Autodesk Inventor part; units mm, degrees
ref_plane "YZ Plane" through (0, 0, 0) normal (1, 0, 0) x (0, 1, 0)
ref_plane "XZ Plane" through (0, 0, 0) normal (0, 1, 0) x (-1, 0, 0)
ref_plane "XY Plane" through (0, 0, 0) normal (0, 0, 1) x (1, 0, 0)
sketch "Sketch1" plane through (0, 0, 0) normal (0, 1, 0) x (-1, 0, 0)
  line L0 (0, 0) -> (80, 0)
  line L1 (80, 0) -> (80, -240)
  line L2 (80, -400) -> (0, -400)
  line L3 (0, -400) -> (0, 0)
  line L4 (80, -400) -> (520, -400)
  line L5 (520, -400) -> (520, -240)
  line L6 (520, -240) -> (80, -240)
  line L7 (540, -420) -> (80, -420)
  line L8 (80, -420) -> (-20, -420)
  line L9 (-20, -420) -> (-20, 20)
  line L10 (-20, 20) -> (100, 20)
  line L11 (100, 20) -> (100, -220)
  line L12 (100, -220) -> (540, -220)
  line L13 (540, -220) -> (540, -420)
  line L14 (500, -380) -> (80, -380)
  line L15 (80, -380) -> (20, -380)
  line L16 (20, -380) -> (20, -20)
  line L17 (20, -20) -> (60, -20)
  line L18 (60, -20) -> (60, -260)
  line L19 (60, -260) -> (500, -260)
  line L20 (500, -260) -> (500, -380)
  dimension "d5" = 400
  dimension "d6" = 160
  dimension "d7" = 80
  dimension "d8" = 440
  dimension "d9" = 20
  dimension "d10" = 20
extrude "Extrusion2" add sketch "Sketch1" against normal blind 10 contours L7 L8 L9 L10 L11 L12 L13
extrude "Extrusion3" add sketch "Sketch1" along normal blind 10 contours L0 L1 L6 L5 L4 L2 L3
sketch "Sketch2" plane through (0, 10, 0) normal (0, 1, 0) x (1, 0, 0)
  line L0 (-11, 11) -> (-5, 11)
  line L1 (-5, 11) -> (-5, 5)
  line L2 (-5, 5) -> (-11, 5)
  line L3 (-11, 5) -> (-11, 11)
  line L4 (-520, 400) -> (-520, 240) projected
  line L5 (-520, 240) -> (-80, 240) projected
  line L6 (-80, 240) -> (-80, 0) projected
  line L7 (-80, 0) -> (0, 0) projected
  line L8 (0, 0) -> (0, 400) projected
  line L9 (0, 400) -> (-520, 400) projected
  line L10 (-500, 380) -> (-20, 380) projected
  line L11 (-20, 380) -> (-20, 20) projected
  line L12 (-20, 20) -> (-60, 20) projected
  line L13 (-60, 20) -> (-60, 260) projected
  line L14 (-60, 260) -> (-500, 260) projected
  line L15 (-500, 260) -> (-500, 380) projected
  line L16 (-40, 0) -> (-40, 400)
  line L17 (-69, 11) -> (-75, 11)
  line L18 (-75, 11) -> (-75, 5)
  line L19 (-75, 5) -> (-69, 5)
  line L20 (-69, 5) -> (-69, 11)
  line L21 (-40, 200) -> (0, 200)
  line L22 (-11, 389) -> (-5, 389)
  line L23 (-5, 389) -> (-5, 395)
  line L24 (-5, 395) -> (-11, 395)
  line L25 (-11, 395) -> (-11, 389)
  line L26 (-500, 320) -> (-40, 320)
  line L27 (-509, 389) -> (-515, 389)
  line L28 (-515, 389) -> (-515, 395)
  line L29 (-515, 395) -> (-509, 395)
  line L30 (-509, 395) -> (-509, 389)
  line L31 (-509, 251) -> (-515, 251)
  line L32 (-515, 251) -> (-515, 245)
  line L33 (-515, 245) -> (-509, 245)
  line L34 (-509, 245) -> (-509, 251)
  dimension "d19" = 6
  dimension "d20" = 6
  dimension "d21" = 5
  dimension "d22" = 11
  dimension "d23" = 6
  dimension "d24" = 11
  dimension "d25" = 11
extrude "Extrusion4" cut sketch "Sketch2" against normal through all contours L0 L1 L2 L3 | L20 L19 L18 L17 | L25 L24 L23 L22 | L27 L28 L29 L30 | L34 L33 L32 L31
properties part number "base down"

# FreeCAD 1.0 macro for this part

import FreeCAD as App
import Part
import Sketcher
from FreeCAD import Vector

doc = App.newDocument("Part")
body = doc.addObject("PartDesign::Body", "Body")
body.AllowCompound = True

# Sketch on XZ plane
sketch1 = body.newObject("Sketcher::SketchObject", "Sketch")
sketch1.AttachmentSupport = (doc.getObject("XZ_Plane"), [""])
sketch1.MapMode = "FlatFace"
sketch1.addGeometry(Part.LineSegment(Vector(20, -420, 0), Vector(-540, -420, 0)), False)
sketch1.addGeometry(Part.LineSegment(Vector(-540, -420, 0), Vector(-540, -220, 0)), False)
sketch1.addGeometry(Part.LineSegment(Vector(-540, -220, 0), Vector(-100, -220, 0)), False)
sketch1.addGeometry(Part.LineSegment(Vector(-100, -220, 0), Vector(-100, 20, 0)), False)
sketch1.addGeometry(Part.LineSegment(Vector(-100, 20, 0), Vector(20, 20, 0)), False)
sketch1.addGeometry(Part.LineSegment(Vector(20, 20, 0), Vector(20, -420, 0)), False)
sketch1.addGeometry(Part.LineSegment(Vector(0, -400, 0), Vector(0, 0, 0)), False)
sketch1.addGeometry(Part.LineSegment(Vector(0, 0, 0), Vector(-80, 0, 0)), False)
sketch1.addGeometry(Part.LineSegment(Vector(-80, 0, 0), Vector(-80, -240, 0)), False)
sketch1.addGeometry(Part.LineSegment(Vector(-80, -240, 0), Vector(-520, -240, 0)), False)
sketch1.addGeometry(Part.LineSegment(Vector(-520, -240, 0), Vector(-520, -400, 0)), False)
sketch1.addGeometry(Part.LineSegment(Vector(-520, -400, 0), Vector(0, -400, 0)), False)
sketch1.addConstraint(Sketcher.Constraint("Coincident", 0, 2, 1, 1))
sketch1.addConstraint(Sketcher.Constraint("Coincident", 1, 2, 2, 1))
sketch1.addConstraint(Sketcher.Constraint("Coincident", 2, 2, 3, 1))
sketch1.addConstraint(Sketcher.Constraint("Coincident", 3, 2, 4, 1))
sketch1.addConstraint(Sketcher.Constraint("Coincident", 4, 2, 5, 1))
sketch1.addConstraint(Sketcher.Constraint("Coincident", 5, 2, 0, 1))
sketch1.addConstraint(Sketcher.Constraint("Coincident", 6, 2, 7, 1))
sketch1.addConstraint(Sketcher.Constraint("Coincident", 7, 2, 8, 1))
sketch1.addConstraint(Sketcher.Constraint("Coincident", 8, 2, 9, 1))
sketch1.addConstraint(Sketcher.Constraint("Coincident", 9, 2, 10, 1))
sketch1.addConstraint(Sketcher.Constraint("Coincident", 10, 2, 11, 1))
sketch1.addConstraint(Sketcher.Constraint("Coincident", 11, 2, 6, 1))
sketch1.addConstraint(Sketcher.Constraint("Horizontal", 0))
sketch1.addConstraint(Sketcher.Constraint("Vertical", 1))
sketch1.addConstraint(Sketcher.Constraint("Horizontal", 2))
sketch1.addConstraint(Sketcher.Constraint("Vertical", 3))
sketch1.addConstraint(Sketcher.Constraint("Horizontal", 4))
sketch1.addConstraint(Sketcher.Constraint("Vertical", 5))
sketch1.addConstraint(Sketcher.Constraint("Vertical", 6))
sketch1.addConstraint(Sketcher.Constraint("Horizontal", 7))
sketch1.addConstraint(Sketcher.Constraint("Vertical", 8))
sketch1.addConstraint(Sketcher.Constraint("Horizontal", 9))
sketch1.addConstraint(Sketcher.Constraint("Vertical", 10))
sketch1.addConstraint(Sketcher.Constraint("Horizontal", 11))
sketch1.addConstraint(Sketcher.Constraint("Coincident", 6, 2, -1, 1))
sketch1.addConstraint(Sketcher.Constraint("Equal", 2, 9))
sketch1.addConstraint(Sketcher.Constraint("Equal", 9, 5))
sketch1.addConstraint(Sketcher.Constraint("Equal", 3, 8))
sketch1.addConstraint(Sketcher.Constraint("DistanceX", 2, 1, 2, 2, 440.0))
sketch1.addConstraint(Sketcher.Constraint("DistanceX", 7, 2, 7, 1, 80.0))
sketch1.addConstraint(Sketcher.Constraint("DistanceY", 6, 1, 6, 2, 400.0))
sketch1.addConstraint(Sketcher.Constraint("DistanceY", 10, 2, 10, 1, 160.0))
sketch1.addConstraint(Sketcher.Constraint("DistanceY", -1, 1, 3, 2, 20.0))
sketch1.addConstraint(Sketcher.Constraint("DistanceX", -1, 1, 4, 2, 20.0))
sketch1.addConstraint(Sketcher.Constraint("DistanceX", 3, 2, 7, 2, 20.0))
pad1 = body.newObject("PartDesign::Pad", "Pad")
pad1.Profile = sketch1
pad1.Length = 10

# Sketch on XZ plane
sketch2 = body.newObject("Sketcher::SketchObject", "Sketch001")
sketch2.AttachmentSupport = (doc.getObject("XZ_Plane"), [""])
sketch2.MapMode = "FlatFace"
sketch2.addGeometry(Part.LineSegment(Vector(-80, 0, 0), Vector(0, 0, 0)), False)
sketch2.addGeometry(Part.LineSegment(Vector(0, 0, 0), Vector(0, -400, 0)), False)
sketch2.addGeometry(Part.LineSegment(Vector(0, -400, 0), Vector(-520, -400, 0)), False)
sketch2.addGeometry(Part.LineSegment(Vector(-520, -400, 0), Vector(-520, -240, 0)), False)
sketch2.addGeometry(Part.LineSegment(Vector(-520, -240, 0), Vector(-80, -240, 0)), False)
sketch2.addGeometry(Part.LineSegment(Vector(-80, -240, 0), Vector(-80, 0, 0)), False)
sketch2.addGeometry(Part.LineSegment(Vector(-500, -260, 0), Vector(-500, -380, 0)), False)
sketch2.addGeometry(Part.LineSegment(Vector(-500, -380, 0), Vector(-20, -380, 0)), False)
sketch2.addGeometry(Part.LineSegment(Vector(-20, -380, 0), Vector(-20, -20, 0)), False)
sketch2.addGeometry(Part.LineSegment(Vector(-20, -20, 0), Vector(-60, -20, 0)), False)
sketch2.addGeometry(Part.LineSegment(Vector(-60, -20, 0), Vector(-60, -260, 0)), False)
sketch2.addGeometry(Part.LineSegment(Vector(-60, -260, 0), Vector(-500, -260, 0)), False)
sketch2.addConstraint(Sketcher.Constraint("Coincident", 0, 2, 1, 1))
sketch2.addConstraint(Sketcher.Constraint("Coincident", 1, 2, 2, 1))
sketch2.addConstraint(Sketcher.Constraint("Coincident", 2, 2, 3, 1))
sketch2.addConstraint(Sketcher.Constraint("Coincident", 3, 2, 4, 1))
sketch2.addConstraint(Sketcher.Constraint("Coincident", 4, 2, 5, 1))
sketch2.addConstraint(Sketcher.Constraint("Coincident", 5, 2, 0, 1))
sketch2.addConstraint(Sketcher.Constraint("Coincident", 6, 2, 7, 1))
sketch2.addConstraint(Sketcher.Constraint("Coincident", 7, 2, 8, 1))
sketch2.addConstraint(Sketcher.Constraint("Coincident", 8, 2, 9, 1))
sketch2.addConstraint(Sketcher.Constraint("Coincident", 9, 2, 10, 1))
sketch2.addConstraint(Sketcher.Constraint("Coincident", 10, 2, 11, 1))
sketch2.addConstraint(Sketcher.Constraint("Coincident", 11, 2, 6, 1))
sketch2.addConstraint(Sketcher.Constraint("Horizontal", 0))
sketch2.addConstraint(Sketcher.Constraint("Vertical", 1))
sketch2.addConstraint(Sketcher.Constraint("Horizontal", 2))
sketch2.addConstraint(Sketcher.Constraint("Vertical", 3))
sketch2.addConstraint(Sketcher.Constraint("Horizontal", 4))
sketch2.addConstraint(Sketcher.Constraint("Vertical", 5))
sketch2.addConstraint(Sketcher.Constraint("Vertical", 6))
sketch2.addConstraint(Sketcher.Constraint("Horizontal", 7))
sketch2.addConstraint(Sketcher.Constraint("Vertical", 8))
sketch2.addConstraint(Sketcher.Constraint("Horizontal", 9))
sketch2.addConstraint(Sketcher.Constraint("Vertical", 10))
sketch2.addConstraint(Sketcher.Constraint("Horizontal", 11))
sketch2.addConstraint(Sketcher.Constraint("Coincident", 0, 2, -1, 1))
sketch2.addConstraint(Sketcher.Constraint("Equal", 4, 11))
sketch2.addConstraint(Sketcher.Constraint("Equal", 5, 10))
sketch2.addConstraint(Sketcher.Constraint("DistanceX", 0, 1, 0, 2, 80.0))
sketch2.addConstraint(Sketcher.Constraint("DistanceX", 4, 1, 4, 2, 440.0))
sketch2.addConstraint(Sketcher.Constraint("DistanceY", 1, 2, 1, 1, 400.0))
sketch2.addConstraint(Sketcher.Constraint("DistanceY", 3, 1, 3, 2, 160.0))
sketch2.addConstraint(Sketcher.Constraint("DistanceX", 7, 2, -1, 1, 20.0))
sketch2.addConstraint(Sketcher.Constraint("DistanceY", 8, 2, -1, 1, 20.0))
sketch2.addConstraint(Sketcher.Constraint("DistanceX", 2, 2, 6, 2, 20.0))
sketch2.addConstraint(Sketcher.Constraint("DistanceY", 2, 2, 6, 2, 20.0))
pad2 = body.newObject("PartDesign::Pad", "Pad001")
pad2.Profile = sketch2
pad2.Length = 10
pad2.Reversed = True

# Sketch on XZ plane
sketch3 = body.newObject("Sketcher::SketchObject", "Sketch002")
sketch3.AttachmentSupport = (doc.getObject("XZ_Plane"), [""])
sketch3.MapMode = "FlatFace"
sketch3.AttachmentOffset = App.Placement(Vector(0, 0, -10), App.Rotation())
sketch3.addGeometry(Part.LineSegment(Vector(-5, -11, 0), Vector(-11, -11, 0)), False)
sketch3.addGeometry(Part.LineSegment(Vector(-11, -11, 0), Vector(-11, -5, 0)), False)
sketch3.addGeometry(Part.LineSegment(Vector(-11, -5, 0), Vector(-5, -5, 0)), False)
sketch3.addGeometry(Part.LineSegment(Vector(-5, -5, 0), Vector(-5, -11, 0)), False)
sketch3.addGeometry(Part.LineSegment(Vector(-69, -5, 0), Vector(-69, -11, 0)), False)
sketch3.addGeometry(Part.LineSegment(Vector(-69, -11, 0), Vector(-75, -11, 0)), False)
sketch3.addGeometry(Part.LineSegment(Vector(-75, -11, 0), Vector(-75, -5, 0)), False)
sketch3.addGeometry(Part.LineSegment(Vector(-75, -5, 0), Vector(-69, -5, 0)), False)
sketch3.addGeometry(Part.LineSegment(Vector(-11, -395, 0), Vector(-11, -389, 0)), False)
sketch3.addGeometry(Part.LineSegment(Vector(-11, -389, 0), Vector(-5, -389, 0)), False)
sketch3.addGeometry(Part.LineSegment(Vector(-5, -389, 0), Vector(-5, -395, 0)), False)
sketch3.addGeometry(Part.LineSegment(Vector(-5, -395, 0), Vector(-11, -395, 0)), False)
sketch3.addGeometry(Part.LineSegment(Vector(-515, -389, 0), Vector(-509, -389, 0)), False)
sketch3.addGeometry(Part.LineSegment(Vector(-509, -389, 0), Vector(-509, -395, 0)), False)
sketch3.addGeometry(Part.LineSegment(Vector(-509, -395, 0), Vector(-515, -395, 0)), False)
sketch3.addGeometry(Part.LineSegment(Vector(-515, -395, 0), Vector(-515, -389, 0)), False)
sketch3.addGeometry(Part.LineSegment(Vector(-509, -245, 0), Vector(-509, -251, 0)), False)
sketch3.addGeometry(Part.LineSegment(Vector(-509, -251, 0), Vector(-515, -251, 0)), False)
sketch3.addGeometry(Part.LineSegment(Vector(-515, -251, 0), Vector(-515, -245, 0)), False)
sketch3.addGeometry(Part.LineSegment(Vector(-515, -245, 0), Vector(-509, -245, 0)), False)
sketch3.addConstraint(Sketcher.Constraint("Coincident", 0, 2, 1, 1))
sketch3.addConstraint(Sketcher.Constraint("Coincident", 1, 2, 2, 1))
sketch3.addConstraint(Sketcher.Constraint("Coincident", 2, 2, 3, 1))
sketch3.addConstraint(Sketcher.Constraint("Coincident", 3, 2, 0, 1))
sketch3.addConstraint(Sketcher.Constraint("Coincident", 4, 2, 5, 1))
sketch3.addConstraint(Sketcher.Constraint("Coincident", 5, 2, 6, 1))
sketch3.addConstraint(Sketcher.Constraint("Coincident", 6, 2, 7, 1))
sketch3.addConstraint(Sketcher.Constraint("Coincident", 7, 2, 4, 1))
sketch3.addConstraint(Sketcher.Constraint("Coincident", 8, 2, 9, 1))
sketch3.addConstraint(Sketcher.Constraint("Coincident", 9, 2, 10, 1))
sketch3.addConstraint(Sketcher.Constraint("Coincident", 10, 2, 11, 1))
sketch3.addConstraint(Sketcher.Constraint("Coincident", 11, 2, 8, 1))
sketch3.addConstraint(Sketcher.Constraint("Coincident", 12, 2, 13, 1))
sketch3.addConstraint(Sketcher.Constraint("Coincident", 13, 2, 14, 1))
sketch3.addConstraint(Sketcher.Constraint("Coincident", 14, 2, 15, 1))
sketch3.addConstraint(Sketcher.Constraint("Coincident", 15, 2, 12, 1))
sketch3.addConstraint(Sketcher.Constraint("Coincident", 16, 2, 17, 1))
sketch3.addConstraint(Sketcher.Constraint("Coincident", 17, 2, 18, 1))
sketch3.addConstraint(Sketcher.Constraint("Coincident", 18, 2, 19, 1))
sketch3.addConstraint(Sketcher.Constraint("Coincident", 19, 2, 16, 1))
sketch3.addConstraint(Sketcher.Constraint("Horizontal", 0))
sketch3.addConstraint(Sketcher.Constraint("Vertical", 1))
sketch3.addConstraint(Sketcher.Constraint("Horizontal", 2))
sketch3.addConstraint(Sketcher.Constraint("Vertical", 3))
sketch3.addConstraint(Sketcher.Constraint("Vertical", 4))
sketch3.addConstraint(Sketcher.Constraint("Horizontal", 5))
sketch3.addConstraint(Sketcher.Constraint("Vertical", 6))
sketch3.addConstraint(Sketcher.Constraint("Horizontal", 7))
sketch3.addConstraint(Sketcher.Constraint("Vertical", 8))
sketch3.addConstraint(Sketcher.Constraint("Horizontal", 9))
sketch3.addConstraint(Sketcher.Constraint("Vertical", 10))
sketch3.addConstraint(Sketcher.Constraint("Horizontal", 11))
sketch3.addConstraint(Sketcher.Constraint("Horizontal", 12))
sketch3.addConstraint(Sketcher.Constraint("Vertical", 13))
sketch3.addConstraint(Sketcher.Constraint("Horizontal", 14))
sketch3.addConstraint(Sketcher.Constraint("Vertical", 15))
sketch3.addConstraint(Sketcher.Constraint("Vertical", 16))
sketch3.addConstraint(Sketcher.Constraint("Horizontal", 17))
sketch3.addConstraint(Sketcher.Constraint("Vertical", 18))
sketch3.addConstraint(Sketcher.Constraint("Horizontal", 19))
sketch3.addConstraint(Sketcher.Constraint("Horizontal", 3, 2, 4, 2))
sketch3.addConstraint(Sketcher.Constraint("Horizontal", 2, 2, 6, 2))
sketch3.addConstraint(Sketcher.Constraint("Horizontal", 9, 2, 12, 2))
sketch3.addConstraint(Sketcher.Constraint("Horizontal", 11, 2, 13, 2))
sketch3.addConstraint(Sketcher.Constraint("Vertical", 1, 2, 8, 2))
sketch3.addConstraint(Sketcher.Constraint("Vertical", 3, 2, 9, 2))
sketch3.addConstraint(Sketcher.Constraint("Vertical", 13, 2, 16, 2))
sketch3.addConstraint(Sketcher.Constraint("Vertical", 15, 2, 17, 2))
sketch3.addConstraint(Sketcher.Constraint("Equal", 2, 5))
sketch3.addConstraint(Sketcher.Constraint("Equal", 11, 12))
sketch3.addConstraint(Sketcher.Constraint("Equal", 19, 1))
sketch3.addConstraint(Sketcher.Constraint("Equal", 6, 8))
sketch3.addConstraint(Sketcher.Constraint("Equal", 15, 16))
sketch3.addConstraint(Sketcher.Constraint("DistanceX", 0, 2, 0, 1, 6.0))
sketch3.addConstraint(Sketcher.Constraint("DistanceX", 0, 2, -1, 1, 11.0))
sketch3.addConstraint(Sketcher.Constraint("DistanceY", 0, 2, -1, 1, 11.0))
sketch3.addConstraint(Sketcher.Constraint("DistanceX", 4, 2, -1, 1, 69.0))
sketch3.addConstraint(Sketcher.Constraint("DistanceY", 8, 2, -1, 1, 389.0))
sketch3.addConstraint(Sketcher.Constraint("DistanceX", 12, 2, -1, 1, 509.0))
sketch3.addConstraint(Sketcher.Constraint("DistanceY", 16, 2, -1, 1, 251.0))
pocket1 = body.newObject("PartDesign::Pocket", "Pocket")
pocket1.Profile = sketch3
pocket1.Type = "ThroughAll"
pocket1.Reversed = True

doc.recompute()
